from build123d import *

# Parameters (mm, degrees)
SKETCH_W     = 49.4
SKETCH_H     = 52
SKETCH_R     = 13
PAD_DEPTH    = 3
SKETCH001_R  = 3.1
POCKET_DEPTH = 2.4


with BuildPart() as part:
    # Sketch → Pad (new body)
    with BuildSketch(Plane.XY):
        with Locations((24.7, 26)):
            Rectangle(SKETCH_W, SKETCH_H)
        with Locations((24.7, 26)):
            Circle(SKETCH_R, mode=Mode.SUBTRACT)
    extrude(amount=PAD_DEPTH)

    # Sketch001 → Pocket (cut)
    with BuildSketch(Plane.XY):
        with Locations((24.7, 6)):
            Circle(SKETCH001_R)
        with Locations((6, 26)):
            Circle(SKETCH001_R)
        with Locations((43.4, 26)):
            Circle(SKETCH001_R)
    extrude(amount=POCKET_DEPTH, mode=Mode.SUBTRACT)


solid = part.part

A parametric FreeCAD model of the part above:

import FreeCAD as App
import Part
import Sketcher


def add_polygon(sketch, points):
    """Adds a closed chain of lines whose ends are joined by coincident constraints."""
    first, n = sketch.GeometryCount, len(points)
    for a, b in zip(points, points[1:] + points[:1]):
        sketch.addGeometry(Part.LineSegment(App.Vector(*a, 0), App.Vector(*b, 0)), False)
    for i in range(n):
        sketch.addConstraint(Sketcher.Constraint("Coincident", first + i, 2, first + (i + 1) % n, 1))

doc = App.newDocument("Part")
params = doc.addObject("Spreadsheet::Sheet", "Params")
for row, (alias, value) in enumerate([
    ("sketch1_diameter", "26 mm"),
    ("sketch1_height", "52 mm"),
    ("sketch1_width", "49.4 mm"),
    ("pad1_length", "3 mm"),
    ("sketch2_diameter", "6.2 mm"),
    ("pocket1_length", "2.4 mm"),
], start=1):
    params.set(f"A{row}", alias)
    params.set(f"B{row}", "=" + value)
    params.setAlias(f"B{row}", alias)

body = doc.addObject("PartDesign::Body", "Body")

sketch1 = body.newObject("Sketcher::SketchObject", "Sketch")
sketch1.AttachmentSupport = (doc.getObject("XY_Plane"), [""])
sketch1.MapMode = "FlatFace"
add_polygon(sketch1, [(0, 52), (0, 0), (49, 0), (49, 52)])
sketch1.addGeometry(Part.Circle(App.Vector(25, 26, 0), App.Vector(0, 0, 1), 13), False)
sketch1.addConstraint(Sketcher.Constraint("Vertical", 0))
sketch1.addConstraint(Sketcher.Constraint("Horizontal", 1))
sketch1.addConstraint(Sketcher.Constraint("Vertical", 2))
sketch1.addConstraint(Sketcher.Constraint("Horizontal", 3))
sketch1.addConstraint(Sketcher.Constraint("Coincident", 0, 2, -1, 1))
sketch1.addConstraint(Sketcher.Constraint("Diameter", 4, 26.0))
sketch1.addConstraint(Sketcher.Constraint("DistanceY", 0, 2, 0, 1, 52.0))
sketch1.addConstraint(Sketcher.Constraint("DistanceX", 1, 1, 1, 2, 49.4))
sketch1.addConstraint(Sketcher.Constraint("DistanceY", -1, 1, 4, 3, 26.0))
sketch1.addConstraint(Sketcher.Constraint("DistanceX", -1, 1, 4, 3, 24.7))
sketch1.setExpression("Constraints[9]", "Params.sketch1_diameter")
sketch1.setExpression("Constraints[10]", "Params.sketch1_height")
sketch1.setExpression("Constraints[11]", "Params.sketch1_width")
pad1 = body.newObject("PartDesign::Pad", "Pad")
pad1.Profile = sketch1
pad1.setExpression("Length", "Params.pad1_length")

sketch2 = body.newObject("Sketcher::SketchObject", "Sketch001")
sketch2.AttachmentSupport = (doc.getObject("XY_Plane"), [""])
sketch2.MapMode = "FlatFace"
sketch2.addGeometry(Part.Circle(App.Vector(24.7, 6, 0), App.Vector(0, 0, 1), 3.1), False)
sketch2.addGeometry(Part.Circle(App.Vector(6, 26, 0), App.Vector(0, 0, 1), 3.1), False)
sketch2.addGeometry(Part.Circle(App.Vector(43.4, 26, 0), App.Vector(0, 0, 1), 3.1), False)
sketch2.addConstraint(Sketcher.Constraint("Equal", 0, 1))
sketch2.addConstraint(Sketcher.Constraint("Equal", 1, 2))
sketch2.addConstraint(Sketcher.Constraint("Horizontal", 1, 3, 2, 3))
sketch2.addConstraint(Sketcher.Constraint("Diameter", 0, 6.2))
sketch2.addConstraint(Sketcher.Constraint("DistanceY", -1, 1, 0, 3, 6.0))
sketch2.addConstraint(Sketcher.Constraint("DistanceX", -1, 1, 1, 3, 6.0))
sketch2.addConstraint(Sketcher.Constraint("DistanceY", -1, 1, 1, 3, 26.0))
sketch2.addConstraint(Sketcher.Constraint("DistanceX", -1, 1, 0, 3, 24.7))
sketch2.addConstraint(Sketcher.Constraint("DistanceX", -1, 1, 2, 3, 43.4))
sketch2.setExpression("Constraints[3]", "Params.sketch2_diameter")
pocket1 = body.newObject("PartDesign::Pocket", "Pocket")
pocket1.Profile = sketch2
pocket1.setExpression("Length", "Params.pocket1_length")
pocket1.Reversed = True

doc.recompute()
